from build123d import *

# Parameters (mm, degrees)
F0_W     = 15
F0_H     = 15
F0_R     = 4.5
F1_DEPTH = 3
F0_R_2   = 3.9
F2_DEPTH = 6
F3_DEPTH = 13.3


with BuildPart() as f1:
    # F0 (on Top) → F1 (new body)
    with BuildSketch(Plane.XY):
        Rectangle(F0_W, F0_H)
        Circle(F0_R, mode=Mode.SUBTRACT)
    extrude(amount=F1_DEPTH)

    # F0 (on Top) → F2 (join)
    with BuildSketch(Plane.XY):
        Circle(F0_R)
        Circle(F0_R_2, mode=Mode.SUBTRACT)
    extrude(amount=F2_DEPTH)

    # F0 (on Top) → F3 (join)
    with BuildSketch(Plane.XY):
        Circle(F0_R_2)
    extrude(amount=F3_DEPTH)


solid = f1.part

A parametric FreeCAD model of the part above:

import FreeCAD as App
import Part
import Sketcher

V = App.Vector
Q = App.Units.Quantity

doc = App.newDocument("Part")
body = doc.addObject("PartDesign::Body", "Body")

# Sketch on XY plane
sketch1 = doc.addObject("Sketcher::SketchObject", "Sketch")
body.addObject(sketch1)
sketch1.AttachmentSupport = (doc.XY_Plane, [""])
sketch1.MapMode = "FlatFace"
sketch1.addGeometry(Part.LineSegment(V(-7.5, 7.5, 0), V(-7.5, -7.5, 0)), False)
sketch1.addGeometry(Part.LineSegment(V(-7.5, -7.5, 0), V(7.5, -7.5, 0)), False)
sketch1.addGeometry(Part.LineSegment(V(7.5, -7.5, 0), V(7.5, 7.5, 0)), False)
sketch1.addGeometry(Part.LineSegment(V(7.5, 7.5, 0), V(-7.5, 7.5, 0)), False)
sketch1.addGeometry(Part.Circle(V(0, 0, 0), V(0, 0, 1), 4.5), False)
sketch1.addConstraint(Sketcher.Constraint("Coincident", 0, 2, 1, 1))
sketch1.addConstraint(Sketcher.Constraint("Coincident", 1, 2, 2, 1))
sketch1.addConstraint(Sketcher.Constraint("Coincident", 2, 2, 3, 1))
sketch1.addConstraint(Sketcher.Constraint("Coincident", 3, 2, 0, 1))
sketch1.addConstraint(Sketcher.Constraint("Vertical", 0))
sketch1.addConstraint(Sketcher.Constraint("Horizontal", 1))
sketch1.addConstraint(Sketcher.Constraint("Vertical", 2))
sketch1.addConstraint(Sketcher.Constraint("Horizontal", 3))
sketch1.addConstraint(Sketcher.Constraint("Coincident", 4, 3, -1, 1))
sketch1.addConstraint(Sketcher.Constraint("Symmetric", 0, 2, 2, 2, -1, 1))
sketch1.addConstraint(Sketcher.Constraint("Equal", 3, 0))
sketch1.addConstraint(Sketcher.Constraint("Diameter", 4, Q("9 mm")))
sketch1.addConstraint(Sketcher.Constraint("DistanceX", 1, 1, 1, 2, Q("15 mm")))
pad1 = doc.addObject("PartDesign::Pad", "Pad")
body.addObject(pad1)
pad1.Profile = sketch1
pad1.Length = 3

# Sketch on XY plane
sketch2 = doc.addObject("Sketcher::SketchObject", "Sketch001")
body.addObject(sketch2)
sketch2.AttachmentSupport = (doc.XY_Plane, [""])
sketch2.MapMode = "FlatFace"
sketch2.addGeometry(Part.Circle(V(0, 0, 0), V(0, 0, 1), 4.5), False)
sketch2.addGeometry(Part.Circle(V(0, 0, 0), V(0, 0, 1), 3.9), False)
sketch2.addConstraint(Sketcher.Constraint("Coincident", 0, 3, -1, 1))
sketch2.addConstraint(Sketcher.Constraint("Coincident", 1, 3, -1, 1))
sketch2.addConstraint(Sketcher.Constraint("Diameter", 0, Q("9 mm")))
sketch2.addConstraint(Sketcher.Constraint("Diameter", 1, Q("7.8 mm")))
pad2 = doc.addObject("PartDesign::Pad", "Pad001")
body.addObject(pad2)
pad2.Profile = sketch2
pad2.Length = 6

# Sketch on XY plane
sketch3 = doc.addObject("Sketcher::SketchObject", "Sketch002")
body.addObject(sketch3)
sketch3.AttachmentSupport = (doc.XY_Plane, [""])
sketch3.MapMode = "FlatFace"
sketch3.addGeometry(Part.Circle(V(0, 0, 0), V(0, 0, 1), 3.9), False)
sketch3.addConstraint(Sketcher.Constraint("Coincident", 0, 3, -1, 1))
sketch3.addConstraint(Sketcher.Constraint("Diameter", 0, Q("7.8 mm")))
pad3 = doc.addObject("PartDesign::Pad", "Pad002")
body.addObject(pad3)
pad3.Profile = sketch3
pad3.Length = 13.3

doc.recompute()
